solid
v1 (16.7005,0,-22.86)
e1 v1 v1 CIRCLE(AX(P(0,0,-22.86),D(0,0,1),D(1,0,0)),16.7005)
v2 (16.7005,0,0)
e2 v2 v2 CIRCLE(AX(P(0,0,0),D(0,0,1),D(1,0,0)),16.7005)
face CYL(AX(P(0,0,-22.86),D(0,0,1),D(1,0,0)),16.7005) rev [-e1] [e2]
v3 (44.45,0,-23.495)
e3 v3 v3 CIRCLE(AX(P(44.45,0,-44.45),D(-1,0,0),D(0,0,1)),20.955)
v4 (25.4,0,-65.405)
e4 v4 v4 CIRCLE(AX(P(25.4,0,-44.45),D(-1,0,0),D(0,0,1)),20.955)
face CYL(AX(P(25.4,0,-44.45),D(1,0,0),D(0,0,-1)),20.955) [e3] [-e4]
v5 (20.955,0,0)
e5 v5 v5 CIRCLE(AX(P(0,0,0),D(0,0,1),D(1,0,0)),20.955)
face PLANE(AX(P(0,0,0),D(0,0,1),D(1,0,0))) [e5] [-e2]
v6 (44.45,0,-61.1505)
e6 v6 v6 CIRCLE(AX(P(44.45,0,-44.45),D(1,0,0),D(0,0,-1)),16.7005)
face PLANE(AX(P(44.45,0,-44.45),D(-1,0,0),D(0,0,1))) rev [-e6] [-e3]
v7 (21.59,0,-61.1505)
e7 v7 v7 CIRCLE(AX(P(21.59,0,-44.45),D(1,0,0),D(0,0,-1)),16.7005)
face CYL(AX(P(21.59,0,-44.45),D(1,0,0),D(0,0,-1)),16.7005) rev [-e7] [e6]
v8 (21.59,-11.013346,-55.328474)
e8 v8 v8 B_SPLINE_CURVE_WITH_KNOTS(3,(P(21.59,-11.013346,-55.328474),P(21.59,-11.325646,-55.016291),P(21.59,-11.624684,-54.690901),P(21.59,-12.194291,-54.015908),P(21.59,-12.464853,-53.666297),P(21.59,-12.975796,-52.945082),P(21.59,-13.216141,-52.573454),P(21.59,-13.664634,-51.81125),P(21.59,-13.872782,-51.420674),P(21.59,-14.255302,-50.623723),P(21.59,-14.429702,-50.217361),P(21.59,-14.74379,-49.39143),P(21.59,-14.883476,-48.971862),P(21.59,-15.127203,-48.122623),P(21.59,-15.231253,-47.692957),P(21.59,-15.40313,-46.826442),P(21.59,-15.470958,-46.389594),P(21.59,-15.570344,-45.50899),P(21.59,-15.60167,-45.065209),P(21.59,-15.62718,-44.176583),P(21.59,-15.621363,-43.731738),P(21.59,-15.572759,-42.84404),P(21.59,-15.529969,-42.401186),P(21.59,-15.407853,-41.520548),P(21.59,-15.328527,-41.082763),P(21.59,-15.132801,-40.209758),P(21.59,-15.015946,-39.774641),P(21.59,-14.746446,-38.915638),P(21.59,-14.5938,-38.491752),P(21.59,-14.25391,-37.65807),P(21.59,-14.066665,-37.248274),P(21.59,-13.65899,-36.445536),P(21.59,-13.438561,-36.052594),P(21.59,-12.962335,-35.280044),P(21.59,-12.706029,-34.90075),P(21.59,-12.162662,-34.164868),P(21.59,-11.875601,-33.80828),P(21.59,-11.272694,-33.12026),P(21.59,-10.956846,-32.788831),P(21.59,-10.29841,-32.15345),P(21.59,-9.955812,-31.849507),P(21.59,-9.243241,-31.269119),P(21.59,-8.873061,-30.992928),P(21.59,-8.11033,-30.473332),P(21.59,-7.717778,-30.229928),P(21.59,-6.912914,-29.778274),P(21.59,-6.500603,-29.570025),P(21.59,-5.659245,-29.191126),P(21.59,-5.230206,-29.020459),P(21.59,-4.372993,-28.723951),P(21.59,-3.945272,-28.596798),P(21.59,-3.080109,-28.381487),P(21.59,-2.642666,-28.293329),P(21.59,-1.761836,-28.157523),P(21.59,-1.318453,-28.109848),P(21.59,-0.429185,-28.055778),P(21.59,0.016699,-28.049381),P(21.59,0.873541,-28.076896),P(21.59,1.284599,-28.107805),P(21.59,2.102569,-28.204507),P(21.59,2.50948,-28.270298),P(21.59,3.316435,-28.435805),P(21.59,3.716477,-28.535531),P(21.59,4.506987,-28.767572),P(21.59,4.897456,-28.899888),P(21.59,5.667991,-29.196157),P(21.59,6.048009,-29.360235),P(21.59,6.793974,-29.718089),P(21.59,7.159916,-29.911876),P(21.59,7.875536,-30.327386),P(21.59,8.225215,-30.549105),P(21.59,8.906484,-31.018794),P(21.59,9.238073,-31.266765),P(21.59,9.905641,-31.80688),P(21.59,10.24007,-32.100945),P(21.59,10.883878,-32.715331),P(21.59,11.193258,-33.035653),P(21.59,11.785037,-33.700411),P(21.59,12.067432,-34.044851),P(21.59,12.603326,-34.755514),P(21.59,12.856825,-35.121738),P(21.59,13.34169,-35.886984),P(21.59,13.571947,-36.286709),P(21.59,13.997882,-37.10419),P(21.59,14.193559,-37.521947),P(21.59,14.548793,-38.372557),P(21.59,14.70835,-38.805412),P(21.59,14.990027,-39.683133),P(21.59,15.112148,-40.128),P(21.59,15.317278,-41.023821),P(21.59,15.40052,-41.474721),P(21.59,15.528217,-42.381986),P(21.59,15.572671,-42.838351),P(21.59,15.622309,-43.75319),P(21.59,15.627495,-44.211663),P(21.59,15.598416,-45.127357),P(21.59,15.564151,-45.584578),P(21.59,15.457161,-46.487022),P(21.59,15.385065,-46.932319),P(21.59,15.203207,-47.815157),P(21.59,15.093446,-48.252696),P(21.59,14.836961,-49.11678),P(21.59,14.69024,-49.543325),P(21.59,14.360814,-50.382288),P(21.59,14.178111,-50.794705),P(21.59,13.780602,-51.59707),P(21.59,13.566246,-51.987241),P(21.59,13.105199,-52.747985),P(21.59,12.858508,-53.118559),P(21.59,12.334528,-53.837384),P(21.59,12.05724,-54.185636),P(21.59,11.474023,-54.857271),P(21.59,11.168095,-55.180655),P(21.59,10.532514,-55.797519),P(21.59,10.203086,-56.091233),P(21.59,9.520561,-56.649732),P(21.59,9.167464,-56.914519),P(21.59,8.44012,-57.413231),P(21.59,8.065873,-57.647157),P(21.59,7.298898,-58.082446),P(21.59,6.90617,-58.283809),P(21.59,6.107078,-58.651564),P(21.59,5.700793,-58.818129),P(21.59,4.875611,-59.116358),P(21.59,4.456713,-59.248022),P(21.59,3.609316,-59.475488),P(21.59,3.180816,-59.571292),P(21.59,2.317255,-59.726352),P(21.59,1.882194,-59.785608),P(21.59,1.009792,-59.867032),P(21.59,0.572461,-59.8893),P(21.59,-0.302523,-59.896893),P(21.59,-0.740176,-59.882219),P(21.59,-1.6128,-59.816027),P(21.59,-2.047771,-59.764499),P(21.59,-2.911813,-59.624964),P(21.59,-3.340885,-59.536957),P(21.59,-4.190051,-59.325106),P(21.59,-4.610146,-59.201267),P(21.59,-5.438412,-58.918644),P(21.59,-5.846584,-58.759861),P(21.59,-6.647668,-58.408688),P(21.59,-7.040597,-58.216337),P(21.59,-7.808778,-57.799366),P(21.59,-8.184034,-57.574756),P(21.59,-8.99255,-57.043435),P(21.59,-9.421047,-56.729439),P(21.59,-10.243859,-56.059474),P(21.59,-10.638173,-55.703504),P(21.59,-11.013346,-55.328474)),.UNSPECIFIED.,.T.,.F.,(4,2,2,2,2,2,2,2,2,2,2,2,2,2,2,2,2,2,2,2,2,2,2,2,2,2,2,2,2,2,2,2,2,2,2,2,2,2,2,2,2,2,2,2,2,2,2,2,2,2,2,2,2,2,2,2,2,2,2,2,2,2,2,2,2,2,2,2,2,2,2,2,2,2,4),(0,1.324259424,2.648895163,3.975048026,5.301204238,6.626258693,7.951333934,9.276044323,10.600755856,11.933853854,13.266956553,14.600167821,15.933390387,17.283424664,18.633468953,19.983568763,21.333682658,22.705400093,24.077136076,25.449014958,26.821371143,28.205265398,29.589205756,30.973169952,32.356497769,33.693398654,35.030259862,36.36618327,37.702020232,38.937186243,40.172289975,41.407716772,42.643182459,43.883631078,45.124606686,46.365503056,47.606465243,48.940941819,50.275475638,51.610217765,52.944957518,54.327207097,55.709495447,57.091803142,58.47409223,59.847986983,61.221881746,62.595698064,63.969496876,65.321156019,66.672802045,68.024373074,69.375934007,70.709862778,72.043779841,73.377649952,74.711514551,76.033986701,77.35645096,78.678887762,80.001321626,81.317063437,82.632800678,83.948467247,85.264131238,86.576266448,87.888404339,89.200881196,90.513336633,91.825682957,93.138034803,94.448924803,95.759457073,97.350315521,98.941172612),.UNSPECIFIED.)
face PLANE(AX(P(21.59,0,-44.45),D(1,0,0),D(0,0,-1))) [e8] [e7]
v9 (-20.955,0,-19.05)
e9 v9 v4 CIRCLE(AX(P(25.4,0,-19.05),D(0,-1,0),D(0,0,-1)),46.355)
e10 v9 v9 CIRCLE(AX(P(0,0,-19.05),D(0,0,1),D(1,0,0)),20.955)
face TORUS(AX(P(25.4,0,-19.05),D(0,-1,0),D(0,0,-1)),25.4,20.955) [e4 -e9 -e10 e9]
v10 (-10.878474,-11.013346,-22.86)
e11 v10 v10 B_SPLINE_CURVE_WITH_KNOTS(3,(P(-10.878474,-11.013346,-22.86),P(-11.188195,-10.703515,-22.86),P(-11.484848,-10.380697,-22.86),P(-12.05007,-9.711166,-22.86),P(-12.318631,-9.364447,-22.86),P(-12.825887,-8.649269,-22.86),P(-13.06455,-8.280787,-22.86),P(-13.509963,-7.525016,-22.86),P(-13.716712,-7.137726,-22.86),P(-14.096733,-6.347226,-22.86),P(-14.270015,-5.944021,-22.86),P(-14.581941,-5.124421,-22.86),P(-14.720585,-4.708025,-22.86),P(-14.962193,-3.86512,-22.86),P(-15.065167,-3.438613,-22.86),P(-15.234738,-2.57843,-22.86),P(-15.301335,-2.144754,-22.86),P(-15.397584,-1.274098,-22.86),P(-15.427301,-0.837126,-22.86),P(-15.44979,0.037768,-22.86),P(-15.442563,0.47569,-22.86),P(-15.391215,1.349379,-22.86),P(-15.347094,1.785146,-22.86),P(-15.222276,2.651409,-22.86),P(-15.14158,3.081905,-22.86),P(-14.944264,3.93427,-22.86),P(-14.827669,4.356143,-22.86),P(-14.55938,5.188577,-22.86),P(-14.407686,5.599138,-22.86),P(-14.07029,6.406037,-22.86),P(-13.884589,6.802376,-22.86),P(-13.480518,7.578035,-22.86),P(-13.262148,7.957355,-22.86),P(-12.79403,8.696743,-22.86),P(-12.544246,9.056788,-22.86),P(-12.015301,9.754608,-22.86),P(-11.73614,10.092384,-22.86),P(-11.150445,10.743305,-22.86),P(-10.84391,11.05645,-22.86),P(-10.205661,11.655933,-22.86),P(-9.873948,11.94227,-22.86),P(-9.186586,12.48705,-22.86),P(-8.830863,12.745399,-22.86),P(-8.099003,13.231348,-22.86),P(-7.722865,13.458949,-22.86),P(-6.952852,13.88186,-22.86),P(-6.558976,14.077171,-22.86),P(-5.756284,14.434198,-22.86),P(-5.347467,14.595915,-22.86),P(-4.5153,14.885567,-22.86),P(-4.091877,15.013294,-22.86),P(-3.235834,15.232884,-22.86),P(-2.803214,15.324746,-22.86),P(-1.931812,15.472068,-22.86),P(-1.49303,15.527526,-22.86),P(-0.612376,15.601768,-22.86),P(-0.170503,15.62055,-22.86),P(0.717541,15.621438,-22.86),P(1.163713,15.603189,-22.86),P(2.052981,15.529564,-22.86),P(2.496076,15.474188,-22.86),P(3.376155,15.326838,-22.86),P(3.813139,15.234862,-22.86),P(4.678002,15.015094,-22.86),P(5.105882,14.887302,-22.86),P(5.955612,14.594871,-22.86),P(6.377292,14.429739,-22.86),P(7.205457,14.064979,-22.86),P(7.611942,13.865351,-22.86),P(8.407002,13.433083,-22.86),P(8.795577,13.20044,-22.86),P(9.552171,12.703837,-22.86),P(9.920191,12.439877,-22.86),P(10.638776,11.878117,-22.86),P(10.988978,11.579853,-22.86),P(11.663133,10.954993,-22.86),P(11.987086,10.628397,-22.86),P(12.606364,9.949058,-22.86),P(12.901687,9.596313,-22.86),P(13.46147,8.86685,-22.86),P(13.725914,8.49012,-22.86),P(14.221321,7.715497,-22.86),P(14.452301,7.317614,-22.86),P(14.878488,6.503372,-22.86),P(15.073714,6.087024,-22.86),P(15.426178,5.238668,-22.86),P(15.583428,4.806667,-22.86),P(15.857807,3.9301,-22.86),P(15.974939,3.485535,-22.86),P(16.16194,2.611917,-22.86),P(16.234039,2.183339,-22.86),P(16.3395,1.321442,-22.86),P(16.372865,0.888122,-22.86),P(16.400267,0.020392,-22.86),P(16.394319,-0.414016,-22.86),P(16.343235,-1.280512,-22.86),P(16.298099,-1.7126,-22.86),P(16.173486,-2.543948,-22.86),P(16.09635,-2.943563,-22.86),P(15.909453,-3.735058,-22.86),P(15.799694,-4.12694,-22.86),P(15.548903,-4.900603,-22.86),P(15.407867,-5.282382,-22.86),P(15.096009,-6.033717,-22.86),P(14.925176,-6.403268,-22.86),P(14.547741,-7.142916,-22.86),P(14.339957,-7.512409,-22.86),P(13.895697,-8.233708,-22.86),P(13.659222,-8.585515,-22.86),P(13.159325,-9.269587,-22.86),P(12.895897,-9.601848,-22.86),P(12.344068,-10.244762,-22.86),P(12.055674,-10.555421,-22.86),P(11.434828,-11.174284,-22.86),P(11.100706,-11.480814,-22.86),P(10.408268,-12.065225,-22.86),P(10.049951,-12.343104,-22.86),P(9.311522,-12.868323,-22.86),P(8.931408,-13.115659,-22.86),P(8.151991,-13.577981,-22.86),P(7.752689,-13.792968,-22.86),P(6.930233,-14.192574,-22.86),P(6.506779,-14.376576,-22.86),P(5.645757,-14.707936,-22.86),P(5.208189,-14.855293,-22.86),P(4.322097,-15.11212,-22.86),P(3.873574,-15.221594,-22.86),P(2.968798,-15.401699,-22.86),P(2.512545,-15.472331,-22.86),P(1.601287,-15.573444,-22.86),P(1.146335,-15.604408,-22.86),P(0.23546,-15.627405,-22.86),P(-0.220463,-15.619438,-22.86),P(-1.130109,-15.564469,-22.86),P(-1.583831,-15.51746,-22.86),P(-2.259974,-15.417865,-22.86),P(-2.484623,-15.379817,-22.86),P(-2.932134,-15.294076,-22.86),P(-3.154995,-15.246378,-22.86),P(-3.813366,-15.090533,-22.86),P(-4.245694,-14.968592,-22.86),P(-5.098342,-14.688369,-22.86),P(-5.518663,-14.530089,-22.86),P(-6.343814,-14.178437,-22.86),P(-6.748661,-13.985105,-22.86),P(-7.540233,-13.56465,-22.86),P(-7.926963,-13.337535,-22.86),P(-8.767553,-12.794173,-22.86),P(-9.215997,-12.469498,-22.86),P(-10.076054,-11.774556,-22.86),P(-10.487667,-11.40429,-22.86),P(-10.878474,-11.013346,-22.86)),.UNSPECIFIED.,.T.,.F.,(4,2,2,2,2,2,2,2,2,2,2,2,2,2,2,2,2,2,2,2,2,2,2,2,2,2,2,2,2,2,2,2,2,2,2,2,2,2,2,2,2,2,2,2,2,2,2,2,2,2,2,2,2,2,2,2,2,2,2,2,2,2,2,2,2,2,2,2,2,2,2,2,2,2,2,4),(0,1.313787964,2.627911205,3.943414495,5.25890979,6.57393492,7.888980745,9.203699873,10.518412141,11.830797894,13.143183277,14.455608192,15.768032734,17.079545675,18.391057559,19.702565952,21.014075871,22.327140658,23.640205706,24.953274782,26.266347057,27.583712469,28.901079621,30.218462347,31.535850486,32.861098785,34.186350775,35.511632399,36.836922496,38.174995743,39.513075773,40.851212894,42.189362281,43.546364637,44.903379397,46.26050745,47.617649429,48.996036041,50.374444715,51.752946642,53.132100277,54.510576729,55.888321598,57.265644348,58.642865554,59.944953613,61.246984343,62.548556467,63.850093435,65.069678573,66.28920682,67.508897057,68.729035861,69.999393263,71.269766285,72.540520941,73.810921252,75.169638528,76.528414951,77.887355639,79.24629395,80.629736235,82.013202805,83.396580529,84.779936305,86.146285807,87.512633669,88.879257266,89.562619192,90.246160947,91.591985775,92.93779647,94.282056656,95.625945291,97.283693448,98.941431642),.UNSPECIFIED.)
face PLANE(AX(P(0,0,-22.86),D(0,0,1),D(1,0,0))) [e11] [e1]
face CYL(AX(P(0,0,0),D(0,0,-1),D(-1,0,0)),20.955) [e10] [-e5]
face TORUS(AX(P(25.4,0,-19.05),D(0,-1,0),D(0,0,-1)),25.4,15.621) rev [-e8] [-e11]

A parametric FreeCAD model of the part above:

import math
import FreeCAD as App
import Part
import Sketcher
from FreeCAD import Vector
Q = App.Units.Quantity

doc = App.newDocument("Part")
params = doc.addObject("Spreadsheet::Sheet", "Params")
for row, (alias, value) in enumerate([
    ("sketch1_diameter", "1.65 in"),
    ("sketch1_diameter2", "1.23 in"),
    ("sketch2_radius", "1 in"),
    ("sketch2_width", "0.75 in"),
    ("sketch3_diameter", "1.315 in"),
    ("pocket1_length", "0.9 in"),
    ("sketch4_diameter", "1.315 in"),
    ("pocket2_length", "0.9 in"),
], start=1):
    params.set(f"A{row}", alias)
    params.set(f"B{row}", "=" + value)
    params.setAlias(f"B{row}", alias)

body = doc.addObject("PartDesign::Body", "Body")

# Sketch on XY plane
sketch1 = doc.addObject("Sketcher::SketchObject", "Sketch")
body.addObject(sketch1)
sketch1.AttachmentSupport = (doc.XY_Plane, [""])
sketch1.MapMode = "FlatFace"
sketch1.addGeometry([
    Part.Circle(Vector(0, 0, 0), Vector(0, 0, 1), 21),
    Part.Circle(Vector(0, 0, 0), Vector(0, 0, 1), 16),
], False)
sketch1.addConstraint([
    Sketcher.Constraint("Coincident", 0, 3, -1, 1),
    Sketcher.Constraint("Coincident", 1, 3, -1, 1),
    Sketcher.Constraint("Diameter", 0, Q("1.65 in")),
    Sketcher.Constraint("Diameter", 1, Q("1.23 in")),
])
sketch1.setExpression("Constraints[2]", "Params.sketch1_diameter")
sketch1.setExpression("Constraints[3]", "Params.sketch1_diameter2")

# Sketch on XZ plane
sketch2 = doc.addObject("Sketcher::SketchObject", "Sketch001")
body.addObject(sketch2)
sketch2.AttachmentSupport = (doc.XZ_Plane, [""])
sketch2.MapMode = "FlatFace"
sketch2.addGeometry([
    Part.LineSegment(Vector(0, 0, 0), Vector(0, -19, 0)),
    Part.ArcOfCircle(Part.Circle(Vector(25, -19, 0), Vector(0, 0, 1), 25), math.radians(180), math.radians(270)),
    Part.LineSegment(Vector(25, -44, 0), Vector(44, -44, 0)),
], False)
sketch2.addConstraint([
    Sketcher.Constraint("Tangent", 0, 2, 1, 1),
    Sketcher.Constraint("Tangent", 1, 2, 2, 1),
    Sketcher.Constraint("Vertical", 0),
    Sketcher.Constraint("Horizontal", 2),
    Sketcher.Constraint("Coincident", 0, 1, -1, 1),
    Sketcher.Constraint("Equal", 2, 0),
    Sketcher.Constraint("Radius", 1, Q("1 in")),
    Sketcher.Constraint("DistanceX", 2, 1, 2, 2, Q("0.75 in")),
])
sketch2.setExpression("Constraints[6]", "Params.sketch2_radius")
sketch2.setExpression("Constraints[7]", "Params.sketch2_width")
doc.recompute()

additivepipe = doc.addObject("PartDesign::AdditivePipe", "AdditivePipe")
body.addObject(additivepipe)
additivepipe.Profile = sketch1
additivepipe.Spine = (sketch2, ["Edge1", "Edge2", "Edge3"])

# Sketch on XY plane
sketch3 = doc.addObject("Sketcher::SketchObject", "Sketch002")
body.addObject(sketch3)
sketch3.AttachmentSupport = (doc.XY_Plane, [""])
sketch3.MapMode = "FlatFace"
sketch3.addGeometry(Part.Circle(Vector(0, 0, 0), Vector(0, 0, 1), 17), False)
sketch3.addConstraint([
    Sketcher.Constraint("Coincident", 0, 3, -1, 1),
    Sketcher.Constraint("Diameter", 0, Q("1.315 in")),
])
sketch3.setExpression("Constraints[1]", "Params.sketch3_diameter")
pocket1 = doc.addObject("PartDesign::Pocket", "Pocket")
body.addObject(pocket1)
pocket1.Profile = sketch3
pocket1.setExpression("Length", "Params.pocket1_length")

# Sketch on YZ plane
sketch4 = doc.addObject("Sketcher::SketchObject", "Sketch003")
body.addObject(sketch4)
sketch4.AttachmentSupport = (doc.YZ_Plane, [""])
sketch4.MapMode = "FlatFace"
sketch4.AttachmentOffset = App.Placement(Vector(0, 0, 1.75 * 25.4), App.Rotation())
sketch4.addGeometry(Part.Circle(Vector(0, -44, 0), Vector(0, 0, 1), 17), False)
sketch4.addConstraint([
    Sketcher.Constraint("PointOnObject", 0, 3, -2),
    Sketcher.Constraint("Diameter", 0, Q("1.315 in")),
    Sketcher.Constraint("DistanceY", 0, 3, -1, 1, Q("1.75 in")),
])
sketch4.setExpression("Constraints[1]", "Params.sketch4_diameter")
pocket2 = doc.addObject("PartDesign::Pocket", "Pocket001")
body.addObject(pocket2)
pocket2.Profile = sketch4
pocket2.setExpression("Length", "Params.pocket2_length")

doc.recompute()
